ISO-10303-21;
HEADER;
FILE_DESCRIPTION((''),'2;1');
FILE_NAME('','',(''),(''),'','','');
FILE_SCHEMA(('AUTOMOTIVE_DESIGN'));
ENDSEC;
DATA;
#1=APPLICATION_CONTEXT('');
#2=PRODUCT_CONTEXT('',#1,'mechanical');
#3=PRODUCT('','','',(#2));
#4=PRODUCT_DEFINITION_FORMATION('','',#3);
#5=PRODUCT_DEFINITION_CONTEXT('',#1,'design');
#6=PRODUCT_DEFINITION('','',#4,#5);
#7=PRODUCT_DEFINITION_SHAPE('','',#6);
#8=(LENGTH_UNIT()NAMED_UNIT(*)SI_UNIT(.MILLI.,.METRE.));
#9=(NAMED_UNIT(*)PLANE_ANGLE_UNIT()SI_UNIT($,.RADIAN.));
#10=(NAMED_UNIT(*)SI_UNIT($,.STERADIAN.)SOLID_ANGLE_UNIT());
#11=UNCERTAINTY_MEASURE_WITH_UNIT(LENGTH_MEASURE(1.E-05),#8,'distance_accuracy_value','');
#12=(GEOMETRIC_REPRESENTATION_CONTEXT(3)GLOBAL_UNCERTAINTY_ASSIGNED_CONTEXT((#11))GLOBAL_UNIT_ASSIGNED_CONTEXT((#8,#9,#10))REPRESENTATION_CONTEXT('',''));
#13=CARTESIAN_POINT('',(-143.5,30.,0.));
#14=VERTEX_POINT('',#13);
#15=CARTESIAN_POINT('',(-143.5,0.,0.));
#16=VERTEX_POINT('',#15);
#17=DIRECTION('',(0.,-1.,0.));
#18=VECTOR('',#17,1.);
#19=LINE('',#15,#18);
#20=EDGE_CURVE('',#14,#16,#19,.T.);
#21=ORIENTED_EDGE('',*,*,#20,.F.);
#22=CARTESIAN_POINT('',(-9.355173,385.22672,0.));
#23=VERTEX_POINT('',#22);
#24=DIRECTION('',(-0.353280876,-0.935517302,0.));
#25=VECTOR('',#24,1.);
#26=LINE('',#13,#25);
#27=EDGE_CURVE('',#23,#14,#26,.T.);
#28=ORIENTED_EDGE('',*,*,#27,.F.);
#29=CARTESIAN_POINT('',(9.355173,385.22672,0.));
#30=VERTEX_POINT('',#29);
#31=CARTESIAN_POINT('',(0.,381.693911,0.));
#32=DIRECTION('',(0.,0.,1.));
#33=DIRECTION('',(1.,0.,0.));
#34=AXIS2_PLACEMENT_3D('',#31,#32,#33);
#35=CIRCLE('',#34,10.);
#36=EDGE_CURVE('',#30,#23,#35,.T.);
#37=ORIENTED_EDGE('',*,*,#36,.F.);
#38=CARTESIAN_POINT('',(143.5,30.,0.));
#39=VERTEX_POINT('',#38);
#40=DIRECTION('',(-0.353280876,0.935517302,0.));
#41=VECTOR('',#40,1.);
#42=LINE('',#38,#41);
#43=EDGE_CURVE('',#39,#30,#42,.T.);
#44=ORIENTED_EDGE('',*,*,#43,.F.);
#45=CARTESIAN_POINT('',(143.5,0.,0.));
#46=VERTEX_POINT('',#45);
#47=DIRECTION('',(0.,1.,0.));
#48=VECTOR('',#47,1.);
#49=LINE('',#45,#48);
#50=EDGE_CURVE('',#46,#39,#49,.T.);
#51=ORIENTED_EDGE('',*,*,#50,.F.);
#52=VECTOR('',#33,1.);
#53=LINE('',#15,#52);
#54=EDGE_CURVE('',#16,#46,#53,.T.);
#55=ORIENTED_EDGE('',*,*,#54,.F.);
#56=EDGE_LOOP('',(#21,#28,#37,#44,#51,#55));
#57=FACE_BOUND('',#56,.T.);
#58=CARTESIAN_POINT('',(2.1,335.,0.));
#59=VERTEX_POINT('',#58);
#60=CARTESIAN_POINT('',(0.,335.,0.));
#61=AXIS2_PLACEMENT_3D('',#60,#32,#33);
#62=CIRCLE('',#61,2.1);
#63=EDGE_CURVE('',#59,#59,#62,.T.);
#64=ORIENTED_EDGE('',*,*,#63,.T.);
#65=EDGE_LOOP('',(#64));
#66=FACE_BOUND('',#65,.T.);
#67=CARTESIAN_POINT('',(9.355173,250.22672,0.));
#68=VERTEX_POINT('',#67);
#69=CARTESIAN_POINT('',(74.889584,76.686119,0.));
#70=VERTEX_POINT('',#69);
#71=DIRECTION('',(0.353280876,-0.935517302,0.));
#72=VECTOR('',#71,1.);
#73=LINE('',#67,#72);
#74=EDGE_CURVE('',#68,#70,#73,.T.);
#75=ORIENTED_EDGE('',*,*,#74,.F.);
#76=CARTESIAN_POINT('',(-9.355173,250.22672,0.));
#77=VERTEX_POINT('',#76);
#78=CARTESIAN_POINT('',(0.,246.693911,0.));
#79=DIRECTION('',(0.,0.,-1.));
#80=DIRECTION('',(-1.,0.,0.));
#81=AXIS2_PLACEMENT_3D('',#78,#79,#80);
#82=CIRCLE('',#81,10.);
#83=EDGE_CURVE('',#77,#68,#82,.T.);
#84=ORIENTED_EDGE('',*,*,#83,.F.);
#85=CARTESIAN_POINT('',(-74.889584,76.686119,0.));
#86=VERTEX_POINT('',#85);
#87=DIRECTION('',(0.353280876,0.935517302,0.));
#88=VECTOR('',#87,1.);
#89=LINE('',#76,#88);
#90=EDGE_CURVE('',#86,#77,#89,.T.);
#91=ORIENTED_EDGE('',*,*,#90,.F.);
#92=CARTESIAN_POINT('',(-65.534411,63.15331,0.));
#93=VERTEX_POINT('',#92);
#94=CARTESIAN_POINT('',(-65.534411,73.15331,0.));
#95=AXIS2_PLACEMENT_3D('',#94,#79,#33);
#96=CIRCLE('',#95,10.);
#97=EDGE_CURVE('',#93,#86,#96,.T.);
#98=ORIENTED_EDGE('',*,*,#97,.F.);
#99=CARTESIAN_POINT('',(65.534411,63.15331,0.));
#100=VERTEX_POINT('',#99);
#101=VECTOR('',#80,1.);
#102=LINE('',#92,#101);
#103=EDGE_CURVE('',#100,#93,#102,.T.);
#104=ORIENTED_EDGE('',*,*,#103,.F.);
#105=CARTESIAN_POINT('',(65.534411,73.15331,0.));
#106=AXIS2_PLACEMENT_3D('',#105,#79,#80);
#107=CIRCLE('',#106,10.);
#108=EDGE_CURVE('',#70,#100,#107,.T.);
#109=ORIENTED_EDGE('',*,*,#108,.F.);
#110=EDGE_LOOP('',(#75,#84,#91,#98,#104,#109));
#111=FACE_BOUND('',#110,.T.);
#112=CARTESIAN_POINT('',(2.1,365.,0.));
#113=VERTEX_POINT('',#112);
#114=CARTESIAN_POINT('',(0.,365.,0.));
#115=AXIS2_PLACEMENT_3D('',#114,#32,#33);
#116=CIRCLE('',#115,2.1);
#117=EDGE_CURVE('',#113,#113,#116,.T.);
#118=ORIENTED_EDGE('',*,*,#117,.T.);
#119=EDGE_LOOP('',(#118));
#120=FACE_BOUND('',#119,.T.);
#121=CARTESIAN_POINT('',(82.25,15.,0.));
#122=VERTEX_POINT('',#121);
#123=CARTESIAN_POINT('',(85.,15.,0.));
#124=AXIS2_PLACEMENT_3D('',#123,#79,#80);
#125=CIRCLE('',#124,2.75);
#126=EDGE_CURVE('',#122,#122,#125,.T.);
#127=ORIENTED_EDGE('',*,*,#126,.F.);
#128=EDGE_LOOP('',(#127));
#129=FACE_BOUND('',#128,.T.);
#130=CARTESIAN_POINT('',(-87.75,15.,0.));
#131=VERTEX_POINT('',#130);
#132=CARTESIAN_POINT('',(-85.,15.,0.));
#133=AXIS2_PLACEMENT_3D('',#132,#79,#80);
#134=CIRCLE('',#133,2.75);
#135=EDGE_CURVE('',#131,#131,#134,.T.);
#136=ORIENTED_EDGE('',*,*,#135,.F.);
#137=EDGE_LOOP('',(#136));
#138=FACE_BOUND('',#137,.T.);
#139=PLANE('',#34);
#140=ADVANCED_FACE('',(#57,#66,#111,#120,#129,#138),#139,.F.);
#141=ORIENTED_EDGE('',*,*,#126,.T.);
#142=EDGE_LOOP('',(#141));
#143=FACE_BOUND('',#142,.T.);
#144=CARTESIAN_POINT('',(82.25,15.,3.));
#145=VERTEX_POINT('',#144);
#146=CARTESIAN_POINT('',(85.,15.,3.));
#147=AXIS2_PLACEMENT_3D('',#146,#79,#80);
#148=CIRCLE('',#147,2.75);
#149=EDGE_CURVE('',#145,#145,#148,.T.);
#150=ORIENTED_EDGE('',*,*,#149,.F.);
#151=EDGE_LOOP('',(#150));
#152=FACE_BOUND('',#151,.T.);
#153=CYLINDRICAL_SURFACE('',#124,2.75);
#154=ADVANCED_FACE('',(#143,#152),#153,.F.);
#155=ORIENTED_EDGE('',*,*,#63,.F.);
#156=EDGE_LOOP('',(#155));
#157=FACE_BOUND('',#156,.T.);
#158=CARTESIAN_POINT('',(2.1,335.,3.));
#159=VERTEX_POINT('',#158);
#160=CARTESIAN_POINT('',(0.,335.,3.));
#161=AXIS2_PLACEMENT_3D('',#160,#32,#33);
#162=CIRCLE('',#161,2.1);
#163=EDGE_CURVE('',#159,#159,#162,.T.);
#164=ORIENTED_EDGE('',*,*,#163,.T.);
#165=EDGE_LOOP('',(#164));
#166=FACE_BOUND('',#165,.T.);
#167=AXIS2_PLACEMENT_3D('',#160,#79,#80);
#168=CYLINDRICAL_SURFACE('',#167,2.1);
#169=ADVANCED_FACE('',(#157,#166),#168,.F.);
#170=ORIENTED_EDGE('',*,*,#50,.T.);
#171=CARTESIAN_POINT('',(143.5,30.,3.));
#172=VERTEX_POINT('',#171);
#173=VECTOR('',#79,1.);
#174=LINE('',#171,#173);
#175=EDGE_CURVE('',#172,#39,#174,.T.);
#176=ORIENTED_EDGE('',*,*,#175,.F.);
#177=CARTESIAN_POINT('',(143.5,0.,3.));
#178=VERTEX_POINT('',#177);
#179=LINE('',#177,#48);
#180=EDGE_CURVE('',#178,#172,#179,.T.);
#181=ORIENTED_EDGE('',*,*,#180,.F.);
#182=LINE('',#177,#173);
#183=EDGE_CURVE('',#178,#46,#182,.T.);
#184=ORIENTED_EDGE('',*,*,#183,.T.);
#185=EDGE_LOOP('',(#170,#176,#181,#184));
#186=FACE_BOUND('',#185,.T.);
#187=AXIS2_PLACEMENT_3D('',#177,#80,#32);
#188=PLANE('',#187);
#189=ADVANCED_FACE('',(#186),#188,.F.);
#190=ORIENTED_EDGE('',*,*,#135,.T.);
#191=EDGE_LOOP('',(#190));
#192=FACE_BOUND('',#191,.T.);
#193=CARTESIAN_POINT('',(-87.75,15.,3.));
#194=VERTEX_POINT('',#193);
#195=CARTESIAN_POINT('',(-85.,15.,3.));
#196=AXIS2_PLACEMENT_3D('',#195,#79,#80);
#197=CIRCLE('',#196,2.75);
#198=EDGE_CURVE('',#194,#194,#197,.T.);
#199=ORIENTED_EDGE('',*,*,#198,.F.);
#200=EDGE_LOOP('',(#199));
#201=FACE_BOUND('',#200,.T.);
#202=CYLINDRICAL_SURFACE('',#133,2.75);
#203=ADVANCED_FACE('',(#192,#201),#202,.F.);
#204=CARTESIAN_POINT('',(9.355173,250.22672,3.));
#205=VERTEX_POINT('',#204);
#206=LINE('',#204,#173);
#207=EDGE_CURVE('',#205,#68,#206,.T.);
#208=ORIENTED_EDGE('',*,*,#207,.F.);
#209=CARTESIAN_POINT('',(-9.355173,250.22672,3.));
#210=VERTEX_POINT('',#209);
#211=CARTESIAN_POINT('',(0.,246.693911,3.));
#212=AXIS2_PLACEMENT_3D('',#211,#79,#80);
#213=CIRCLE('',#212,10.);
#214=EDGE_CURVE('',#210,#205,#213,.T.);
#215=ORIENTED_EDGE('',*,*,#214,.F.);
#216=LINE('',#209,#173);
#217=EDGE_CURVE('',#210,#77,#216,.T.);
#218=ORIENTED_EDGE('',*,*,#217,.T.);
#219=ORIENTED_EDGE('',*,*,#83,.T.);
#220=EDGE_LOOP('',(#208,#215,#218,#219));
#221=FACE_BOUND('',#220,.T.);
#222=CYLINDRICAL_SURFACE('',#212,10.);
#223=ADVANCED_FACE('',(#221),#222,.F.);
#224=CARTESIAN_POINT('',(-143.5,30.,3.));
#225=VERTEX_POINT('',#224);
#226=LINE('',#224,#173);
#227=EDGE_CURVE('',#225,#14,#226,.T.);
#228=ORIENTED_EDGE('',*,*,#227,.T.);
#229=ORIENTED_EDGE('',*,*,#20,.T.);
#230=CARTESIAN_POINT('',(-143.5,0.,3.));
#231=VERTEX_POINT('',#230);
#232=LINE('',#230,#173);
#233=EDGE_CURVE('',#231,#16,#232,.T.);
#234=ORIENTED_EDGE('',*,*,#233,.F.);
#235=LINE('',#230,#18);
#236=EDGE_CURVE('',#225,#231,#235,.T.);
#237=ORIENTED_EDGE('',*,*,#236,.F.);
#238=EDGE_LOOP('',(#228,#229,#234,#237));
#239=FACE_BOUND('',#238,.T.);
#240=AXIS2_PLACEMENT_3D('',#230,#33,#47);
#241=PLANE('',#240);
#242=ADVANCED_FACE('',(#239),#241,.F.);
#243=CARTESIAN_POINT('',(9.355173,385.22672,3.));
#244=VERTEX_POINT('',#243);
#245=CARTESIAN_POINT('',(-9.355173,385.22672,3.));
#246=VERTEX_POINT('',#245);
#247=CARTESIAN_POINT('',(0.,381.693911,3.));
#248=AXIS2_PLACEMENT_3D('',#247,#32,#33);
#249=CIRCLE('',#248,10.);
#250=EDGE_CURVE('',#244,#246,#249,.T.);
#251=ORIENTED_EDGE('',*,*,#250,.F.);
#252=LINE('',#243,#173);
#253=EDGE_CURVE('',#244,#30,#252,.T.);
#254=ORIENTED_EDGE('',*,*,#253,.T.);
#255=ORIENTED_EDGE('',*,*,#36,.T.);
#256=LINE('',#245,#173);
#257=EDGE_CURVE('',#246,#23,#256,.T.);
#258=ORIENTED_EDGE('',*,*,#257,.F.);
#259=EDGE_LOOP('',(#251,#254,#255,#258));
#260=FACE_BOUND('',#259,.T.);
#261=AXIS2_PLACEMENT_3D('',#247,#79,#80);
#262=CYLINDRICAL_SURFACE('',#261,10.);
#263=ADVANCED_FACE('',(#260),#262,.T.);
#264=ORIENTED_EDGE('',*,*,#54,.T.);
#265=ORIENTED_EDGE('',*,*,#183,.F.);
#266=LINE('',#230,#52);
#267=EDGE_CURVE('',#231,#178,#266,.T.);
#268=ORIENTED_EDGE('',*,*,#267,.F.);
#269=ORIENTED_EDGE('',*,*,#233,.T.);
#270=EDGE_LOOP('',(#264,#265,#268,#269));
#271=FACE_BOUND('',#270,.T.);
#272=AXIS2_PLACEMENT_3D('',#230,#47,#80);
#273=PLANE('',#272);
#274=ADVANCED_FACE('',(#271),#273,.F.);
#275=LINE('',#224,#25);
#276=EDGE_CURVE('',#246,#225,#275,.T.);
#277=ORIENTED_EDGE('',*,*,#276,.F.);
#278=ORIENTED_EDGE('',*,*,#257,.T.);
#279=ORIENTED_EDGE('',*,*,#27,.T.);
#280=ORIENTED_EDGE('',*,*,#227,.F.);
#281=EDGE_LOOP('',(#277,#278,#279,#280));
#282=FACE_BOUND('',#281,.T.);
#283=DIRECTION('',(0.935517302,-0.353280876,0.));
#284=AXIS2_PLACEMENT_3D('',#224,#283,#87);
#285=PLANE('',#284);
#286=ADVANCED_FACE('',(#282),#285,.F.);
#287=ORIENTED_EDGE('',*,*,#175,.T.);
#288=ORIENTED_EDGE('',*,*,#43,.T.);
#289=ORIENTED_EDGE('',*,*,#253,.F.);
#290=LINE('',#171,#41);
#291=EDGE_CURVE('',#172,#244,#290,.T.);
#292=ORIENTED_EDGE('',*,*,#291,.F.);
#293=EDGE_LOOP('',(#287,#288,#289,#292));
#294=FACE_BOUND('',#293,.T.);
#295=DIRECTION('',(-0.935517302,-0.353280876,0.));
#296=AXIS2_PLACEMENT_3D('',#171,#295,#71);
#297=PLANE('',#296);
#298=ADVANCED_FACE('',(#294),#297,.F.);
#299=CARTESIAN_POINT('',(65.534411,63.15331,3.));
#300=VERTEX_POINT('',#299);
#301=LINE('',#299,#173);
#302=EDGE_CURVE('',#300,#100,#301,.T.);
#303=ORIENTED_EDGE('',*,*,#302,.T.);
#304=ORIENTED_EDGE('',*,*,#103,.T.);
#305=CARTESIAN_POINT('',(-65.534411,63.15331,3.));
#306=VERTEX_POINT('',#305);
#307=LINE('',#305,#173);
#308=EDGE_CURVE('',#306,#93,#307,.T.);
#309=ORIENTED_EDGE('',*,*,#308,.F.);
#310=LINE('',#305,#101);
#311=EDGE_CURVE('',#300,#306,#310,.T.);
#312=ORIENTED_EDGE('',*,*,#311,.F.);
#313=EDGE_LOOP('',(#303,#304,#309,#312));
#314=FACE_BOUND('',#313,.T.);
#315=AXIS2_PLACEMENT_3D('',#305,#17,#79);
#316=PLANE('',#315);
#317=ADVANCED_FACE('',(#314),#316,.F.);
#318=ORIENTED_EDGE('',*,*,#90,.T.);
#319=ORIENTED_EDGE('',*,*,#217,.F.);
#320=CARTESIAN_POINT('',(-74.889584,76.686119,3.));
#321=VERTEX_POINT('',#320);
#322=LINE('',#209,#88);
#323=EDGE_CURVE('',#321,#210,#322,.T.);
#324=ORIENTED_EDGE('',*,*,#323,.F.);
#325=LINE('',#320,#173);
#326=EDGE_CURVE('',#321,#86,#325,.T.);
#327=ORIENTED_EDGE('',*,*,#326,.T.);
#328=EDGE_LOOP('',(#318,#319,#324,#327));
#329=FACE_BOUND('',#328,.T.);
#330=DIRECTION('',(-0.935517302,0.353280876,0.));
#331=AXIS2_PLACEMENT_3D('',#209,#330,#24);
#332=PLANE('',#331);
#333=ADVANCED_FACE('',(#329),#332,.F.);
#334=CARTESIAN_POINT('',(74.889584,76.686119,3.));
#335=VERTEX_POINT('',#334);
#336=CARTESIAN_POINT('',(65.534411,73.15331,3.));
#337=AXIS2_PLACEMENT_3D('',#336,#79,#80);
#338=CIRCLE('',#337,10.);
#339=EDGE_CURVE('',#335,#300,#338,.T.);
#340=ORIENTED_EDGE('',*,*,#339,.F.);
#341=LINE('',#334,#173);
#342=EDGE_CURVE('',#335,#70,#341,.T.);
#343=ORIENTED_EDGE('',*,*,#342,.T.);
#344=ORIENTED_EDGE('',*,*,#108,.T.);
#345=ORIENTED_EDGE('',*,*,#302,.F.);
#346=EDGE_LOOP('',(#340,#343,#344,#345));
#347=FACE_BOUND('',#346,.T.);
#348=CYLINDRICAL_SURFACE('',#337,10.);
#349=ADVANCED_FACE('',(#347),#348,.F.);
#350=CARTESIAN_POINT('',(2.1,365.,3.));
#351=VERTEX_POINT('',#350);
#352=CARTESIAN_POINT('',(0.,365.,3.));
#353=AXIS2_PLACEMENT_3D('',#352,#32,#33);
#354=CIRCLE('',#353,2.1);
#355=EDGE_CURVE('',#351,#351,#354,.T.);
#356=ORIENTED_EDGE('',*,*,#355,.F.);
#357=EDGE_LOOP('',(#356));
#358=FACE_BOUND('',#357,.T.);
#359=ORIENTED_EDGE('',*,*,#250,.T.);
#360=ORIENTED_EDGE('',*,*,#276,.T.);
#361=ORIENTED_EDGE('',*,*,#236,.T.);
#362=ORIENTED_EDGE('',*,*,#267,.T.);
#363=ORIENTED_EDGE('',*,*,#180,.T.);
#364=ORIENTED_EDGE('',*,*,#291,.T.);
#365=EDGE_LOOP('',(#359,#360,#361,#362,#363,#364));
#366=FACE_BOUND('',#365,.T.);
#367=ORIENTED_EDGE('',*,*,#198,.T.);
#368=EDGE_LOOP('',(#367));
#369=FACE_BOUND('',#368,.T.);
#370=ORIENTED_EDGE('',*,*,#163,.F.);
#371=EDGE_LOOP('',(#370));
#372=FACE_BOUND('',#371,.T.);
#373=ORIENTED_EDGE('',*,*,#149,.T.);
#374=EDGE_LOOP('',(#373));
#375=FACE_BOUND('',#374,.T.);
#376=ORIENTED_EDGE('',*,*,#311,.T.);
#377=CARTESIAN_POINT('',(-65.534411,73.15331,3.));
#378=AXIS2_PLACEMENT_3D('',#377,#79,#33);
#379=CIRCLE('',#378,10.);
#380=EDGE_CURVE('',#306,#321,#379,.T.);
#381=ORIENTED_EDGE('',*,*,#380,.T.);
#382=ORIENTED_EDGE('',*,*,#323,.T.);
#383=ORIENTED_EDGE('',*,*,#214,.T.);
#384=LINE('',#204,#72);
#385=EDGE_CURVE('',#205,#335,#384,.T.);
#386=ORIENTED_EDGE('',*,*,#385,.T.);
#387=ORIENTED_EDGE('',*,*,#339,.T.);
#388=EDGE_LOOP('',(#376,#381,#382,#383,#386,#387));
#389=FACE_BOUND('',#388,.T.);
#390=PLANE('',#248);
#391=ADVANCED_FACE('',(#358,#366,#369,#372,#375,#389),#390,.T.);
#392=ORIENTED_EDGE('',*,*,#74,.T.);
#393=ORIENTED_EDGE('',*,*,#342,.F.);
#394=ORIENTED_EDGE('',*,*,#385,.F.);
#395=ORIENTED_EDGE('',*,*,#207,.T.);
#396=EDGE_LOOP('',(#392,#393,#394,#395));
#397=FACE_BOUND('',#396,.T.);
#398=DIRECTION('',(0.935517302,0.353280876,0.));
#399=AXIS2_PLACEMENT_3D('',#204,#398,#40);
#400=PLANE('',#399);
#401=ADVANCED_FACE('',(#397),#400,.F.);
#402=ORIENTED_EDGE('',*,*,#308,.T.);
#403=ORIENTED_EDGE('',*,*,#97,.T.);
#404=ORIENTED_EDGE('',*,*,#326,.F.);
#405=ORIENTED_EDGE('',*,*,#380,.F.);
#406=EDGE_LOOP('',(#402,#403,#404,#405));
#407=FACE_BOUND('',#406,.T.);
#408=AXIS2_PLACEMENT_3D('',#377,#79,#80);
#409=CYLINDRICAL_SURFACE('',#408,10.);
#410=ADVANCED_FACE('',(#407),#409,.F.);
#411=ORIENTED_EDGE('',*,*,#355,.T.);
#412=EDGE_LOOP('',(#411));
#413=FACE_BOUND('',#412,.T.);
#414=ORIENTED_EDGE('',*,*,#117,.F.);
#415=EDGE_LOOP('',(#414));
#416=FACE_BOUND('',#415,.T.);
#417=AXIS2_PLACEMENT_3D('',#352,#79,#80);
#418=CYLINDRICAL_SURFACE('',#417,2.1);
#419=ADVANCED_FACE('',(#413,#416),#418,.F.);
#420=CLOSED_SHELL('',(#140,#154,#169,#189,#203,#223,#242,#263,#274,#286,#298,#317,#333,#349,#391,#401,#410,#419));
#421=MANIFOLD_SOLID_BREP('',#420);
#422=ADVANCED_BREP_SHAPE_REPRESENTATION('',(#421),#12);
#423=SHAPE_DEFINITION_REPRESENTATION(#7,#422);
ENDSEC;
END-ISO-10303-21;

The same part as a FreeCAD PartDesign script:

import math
import FreeCAD as App
import Part
import Sketcher

V = App.Vector
Q = App.Units.Quantity

doc = App.newDocument("Part")
body = doc.addObject("PartDesign::Body", "Body")

sketch1 = body.newObject("Sketcher::SketchObject", "Sketch")
sketch1.AttachmentSupport = (doc.getObject("XY_Plane"), [""])
sketch1.MapMode = "FlatFace"
sketch1.addGeometry(Part.LineSegment(V(-143.5, 0, 0), V(143.5, 0, 0)), False)
sketch1.addGeometry(Part.LineSegment(V(143.5, 0, 0), V(143.5, 30, 0)), False)
sketch1.addGeometry(Part.LineSegment(V(143.5, 30, 0), V(9.4, 385.2, 0)), False)
sketch1.addGeometry(Part.ArcOfCircle(Part.Circle(V(0, 381.7, 0), V(0, 0, 1), 10), math.radians(21), math.radians(159)), False)
sketch1.addGeometry(Part.LineSegment(V(-9.4, 385.2, 0), V(-143.5, 30, 0)), False)
sketch1.addGeometry(Part.LineSegment(V(-143.5, 30, 0), V(-143.5, 0, 0)), False)
sketch1.addGeometry(Part.Circle(V(0, 335, 0), V(0, 0, 1), 2.1), False)
sketch1.addGeometry(Part.Circle(V(0, 365, 0), V(0, 0, 1), 2.1), False)
sketch1.addConstraint(Sketcher.Constraint("Coincident", 0, 2, 1, 1))
sketch1.addConstraint(Sketcher.Constraint("Coincident", 1, 2, 2, 1))
sketch1.addConstraint(Sketcher.Constraint("Tangent", 2, 2, 3, 1))
sketch1.addConstraint(Sketcher.Constraint("Tangent", 3, 2, 4, 1))
sketch1.addConstraint(Sketcher.Constraint("Coincident", 4, 2, 5, 1))
sketch1.addConstraint(Sketcher.Constraint("Coincident", 5, 2, 0, 1))
sketch1.addConstraint(Sketcher.Constraint("Horizontal", 0))
sketch1.addConstraint(Sketcher.Constraint("Vertical", 1))
sketch1.addConstraint(Sketcher.Constraint("Vertical", 5))
sketch1.addConstraint(Sketcher.Constraint("Equal", 6, 7))
sketch1.addConstraint(Sketcher.Constraint("Symmetric", 0, 2, 5, 2, -1, 1))
sketch1.addConstraint(Sketcher.Constraint("PointOnObject", 3, 3, -2))
sketch1.addConstraint(Sketcher.Constraint("PointOnObject", 6, 3, -2))
sketch1.addConstraint(Sketcher.Constraint("PointOnObject", 7, 3, -2))
sketch1.addConstraint(Sketcher.Constraint("Horizontal", 1, 2, 4, 2))
sketch1.addConstraint(Sketcher.Constraint("Radius", 3, Q("10 mm")))
sketch1.addConstraint(Sketcher.Constraint("Diameter", 6, Q("4.2 mm")))
sketch1.addConstraint(Sketcher.Constraint("DistanceX", 0, 1, 0, 2, Q("287 mm")))
sketch1.addConstraint(Sketcher.Constraint("DistanceY", 1, 1, 1, 2, Q("30 mm")))
sketch1.addConstraint(Sketcher.Constraint("DistanceY", -1, 1, 6, 3, Q("335 mm")))
sketch1.addConstraint(Sketcher.Constraint("DistanceY", -1, 1, 7, 3, Q("365 mm")))
sketch1.addConstraint(Sketcher.Constraint("DistanceY", -1, 1, 3, 3, Q("381.693911 mm")))
pad1 = body.newObject("PartDesign::Pad", "Pad")
pad1.Profile = sketch1
pad1.Length = 3

sketch2 = body.newObject("Sketcher::SketchObject", "Sketch001")
sketch2.AttachmentSupport = (doc.getObject("XY_Plane"), [""])
sketch2.MapMode = "FlatFace"
sketch2.addGeometry(Part.Circle(V(85, 15, 0), V(0, 0, 1), 2.8), False)
sketch2.addGeometry(Part.Circle(V(-85, 15, 0), V(0, 0, 1), 2.8), False)
sketch2.addConstraint(Sketcher.Constraint("Equal", 0, 1))
sketch2.addConstraint(Sketcher.Constraint("Symmetric", 0, 3, 1, 3, -2))
sketch2.addConstraint(Sketcher.Constraint("Diameter", 0, Q("5.5 mm")))
sketch2.addConstraint(Sketcher.Constraint("DistanceX", -1, 1, 0, 3, Q("85 mm")))
sketch2.addConstraint(Sketcher.Constraint("DistanceY", -1, 1, 0, 3, Q("15 mm")))
doc.recompute()
hole = body.newObject("PartDesign::Hole", "Hole")
hole.Profile = sketch2
hole.ThreadType = "None"
hole.Diameter = 5.5
hole.DepthType = "ThroughAll"
hole.Reversed = True

sketch3 = body.newObject("Sketcher::SketchObject", "Sketch002")
sketch3.AttachmentSupport = (doc.getObject("XY_Plane"), [""])
sketch3.MapMode = "FlatFace"
sketch3.addGeometry(Part.LineSegment(V(-75, 77, 0), V(-9, 250, 0)), False)
sketch3.addGeometry(Part.ArcOfCircle(Part.Circle(V(0, 247, 0), V(0, 0, 1), 10), math.radians(21), math.radians(159)), False)
sketch3.addGeometry(Part.LineSegment(V(9, 250, 0), V(75, 77, 0)), False)
sketch3.addGeometry(Part.ArcOfCircle(Part.Circle(V(66, 73, 0), V(0, 0, 1), 10), math.radians(-90), math.radians(21)), False)
sketch3.addGeometry(Part.LineSegment(V(66, 63, 0), V(-66, 63, 0)), False)
sketch3.addGeometry(Part.ArcOfCircle(Part.Circle(V(-66, 73, 0), V(0, 0, 1), 10), math.radians(159), math.radians(270)), False)
sketch3.addConstraint(Sketcher.Constraint("Tangent", 0, 2, 1, 2))
sketch3.addConstraint(Sketcher.Constraint("Tangent", 1, 1, 2, 1))
sketch3.addConstraint(Sketcher.Constraint("Tangent", 2, 2, 3, 2))
sketch3.addConstraint(Sketcher.Constraint("Tangent", 3, 1, 4, 1))
sketch3.addConstraint(Sketcher.Constraint("Tangent", 4, 2, 5, 2))
sketch3.addConstraint(Sketcher.Constraint("Tangent", 5, 1, 0, 1))
sketch3.addConstraint(Sketcher.Constraint("Horizontal", 4))
sketch3.addConstraint(Sketcher.Constraint("Equal", 1, 3))
sketch3.addConstraint(Sketcher.Constraint("Equal", 3, 5))
sketch3.addConstraint(Sketcher.Constraint("Symmetric", 0, 2, 1, 1, -2))
sketch3.addConstraint(Sketcher.Constraint("Radius", 1, Q("10 mm")))
sketch3.addConstraint(Sketcher.Constraint("DistanceY", 3, 3, 1, 3, Q("173.540601 mm")))
sketch3.addConstraint(Sketcher.Constraint("Distance", 0, Q("185.502289 mm")))
sketch3.addConstraint(Sketcher.Constraint("DistanceY", -1, 1, 1, 3, Q("246.693911 mm")))
pocket1 = body.newObject("PartDesign::Pocket", "Pocket")
pocket1.Profile = sketch3
pocket1.Length = 3
pocket1.Reversed = True

doc.recompute()
